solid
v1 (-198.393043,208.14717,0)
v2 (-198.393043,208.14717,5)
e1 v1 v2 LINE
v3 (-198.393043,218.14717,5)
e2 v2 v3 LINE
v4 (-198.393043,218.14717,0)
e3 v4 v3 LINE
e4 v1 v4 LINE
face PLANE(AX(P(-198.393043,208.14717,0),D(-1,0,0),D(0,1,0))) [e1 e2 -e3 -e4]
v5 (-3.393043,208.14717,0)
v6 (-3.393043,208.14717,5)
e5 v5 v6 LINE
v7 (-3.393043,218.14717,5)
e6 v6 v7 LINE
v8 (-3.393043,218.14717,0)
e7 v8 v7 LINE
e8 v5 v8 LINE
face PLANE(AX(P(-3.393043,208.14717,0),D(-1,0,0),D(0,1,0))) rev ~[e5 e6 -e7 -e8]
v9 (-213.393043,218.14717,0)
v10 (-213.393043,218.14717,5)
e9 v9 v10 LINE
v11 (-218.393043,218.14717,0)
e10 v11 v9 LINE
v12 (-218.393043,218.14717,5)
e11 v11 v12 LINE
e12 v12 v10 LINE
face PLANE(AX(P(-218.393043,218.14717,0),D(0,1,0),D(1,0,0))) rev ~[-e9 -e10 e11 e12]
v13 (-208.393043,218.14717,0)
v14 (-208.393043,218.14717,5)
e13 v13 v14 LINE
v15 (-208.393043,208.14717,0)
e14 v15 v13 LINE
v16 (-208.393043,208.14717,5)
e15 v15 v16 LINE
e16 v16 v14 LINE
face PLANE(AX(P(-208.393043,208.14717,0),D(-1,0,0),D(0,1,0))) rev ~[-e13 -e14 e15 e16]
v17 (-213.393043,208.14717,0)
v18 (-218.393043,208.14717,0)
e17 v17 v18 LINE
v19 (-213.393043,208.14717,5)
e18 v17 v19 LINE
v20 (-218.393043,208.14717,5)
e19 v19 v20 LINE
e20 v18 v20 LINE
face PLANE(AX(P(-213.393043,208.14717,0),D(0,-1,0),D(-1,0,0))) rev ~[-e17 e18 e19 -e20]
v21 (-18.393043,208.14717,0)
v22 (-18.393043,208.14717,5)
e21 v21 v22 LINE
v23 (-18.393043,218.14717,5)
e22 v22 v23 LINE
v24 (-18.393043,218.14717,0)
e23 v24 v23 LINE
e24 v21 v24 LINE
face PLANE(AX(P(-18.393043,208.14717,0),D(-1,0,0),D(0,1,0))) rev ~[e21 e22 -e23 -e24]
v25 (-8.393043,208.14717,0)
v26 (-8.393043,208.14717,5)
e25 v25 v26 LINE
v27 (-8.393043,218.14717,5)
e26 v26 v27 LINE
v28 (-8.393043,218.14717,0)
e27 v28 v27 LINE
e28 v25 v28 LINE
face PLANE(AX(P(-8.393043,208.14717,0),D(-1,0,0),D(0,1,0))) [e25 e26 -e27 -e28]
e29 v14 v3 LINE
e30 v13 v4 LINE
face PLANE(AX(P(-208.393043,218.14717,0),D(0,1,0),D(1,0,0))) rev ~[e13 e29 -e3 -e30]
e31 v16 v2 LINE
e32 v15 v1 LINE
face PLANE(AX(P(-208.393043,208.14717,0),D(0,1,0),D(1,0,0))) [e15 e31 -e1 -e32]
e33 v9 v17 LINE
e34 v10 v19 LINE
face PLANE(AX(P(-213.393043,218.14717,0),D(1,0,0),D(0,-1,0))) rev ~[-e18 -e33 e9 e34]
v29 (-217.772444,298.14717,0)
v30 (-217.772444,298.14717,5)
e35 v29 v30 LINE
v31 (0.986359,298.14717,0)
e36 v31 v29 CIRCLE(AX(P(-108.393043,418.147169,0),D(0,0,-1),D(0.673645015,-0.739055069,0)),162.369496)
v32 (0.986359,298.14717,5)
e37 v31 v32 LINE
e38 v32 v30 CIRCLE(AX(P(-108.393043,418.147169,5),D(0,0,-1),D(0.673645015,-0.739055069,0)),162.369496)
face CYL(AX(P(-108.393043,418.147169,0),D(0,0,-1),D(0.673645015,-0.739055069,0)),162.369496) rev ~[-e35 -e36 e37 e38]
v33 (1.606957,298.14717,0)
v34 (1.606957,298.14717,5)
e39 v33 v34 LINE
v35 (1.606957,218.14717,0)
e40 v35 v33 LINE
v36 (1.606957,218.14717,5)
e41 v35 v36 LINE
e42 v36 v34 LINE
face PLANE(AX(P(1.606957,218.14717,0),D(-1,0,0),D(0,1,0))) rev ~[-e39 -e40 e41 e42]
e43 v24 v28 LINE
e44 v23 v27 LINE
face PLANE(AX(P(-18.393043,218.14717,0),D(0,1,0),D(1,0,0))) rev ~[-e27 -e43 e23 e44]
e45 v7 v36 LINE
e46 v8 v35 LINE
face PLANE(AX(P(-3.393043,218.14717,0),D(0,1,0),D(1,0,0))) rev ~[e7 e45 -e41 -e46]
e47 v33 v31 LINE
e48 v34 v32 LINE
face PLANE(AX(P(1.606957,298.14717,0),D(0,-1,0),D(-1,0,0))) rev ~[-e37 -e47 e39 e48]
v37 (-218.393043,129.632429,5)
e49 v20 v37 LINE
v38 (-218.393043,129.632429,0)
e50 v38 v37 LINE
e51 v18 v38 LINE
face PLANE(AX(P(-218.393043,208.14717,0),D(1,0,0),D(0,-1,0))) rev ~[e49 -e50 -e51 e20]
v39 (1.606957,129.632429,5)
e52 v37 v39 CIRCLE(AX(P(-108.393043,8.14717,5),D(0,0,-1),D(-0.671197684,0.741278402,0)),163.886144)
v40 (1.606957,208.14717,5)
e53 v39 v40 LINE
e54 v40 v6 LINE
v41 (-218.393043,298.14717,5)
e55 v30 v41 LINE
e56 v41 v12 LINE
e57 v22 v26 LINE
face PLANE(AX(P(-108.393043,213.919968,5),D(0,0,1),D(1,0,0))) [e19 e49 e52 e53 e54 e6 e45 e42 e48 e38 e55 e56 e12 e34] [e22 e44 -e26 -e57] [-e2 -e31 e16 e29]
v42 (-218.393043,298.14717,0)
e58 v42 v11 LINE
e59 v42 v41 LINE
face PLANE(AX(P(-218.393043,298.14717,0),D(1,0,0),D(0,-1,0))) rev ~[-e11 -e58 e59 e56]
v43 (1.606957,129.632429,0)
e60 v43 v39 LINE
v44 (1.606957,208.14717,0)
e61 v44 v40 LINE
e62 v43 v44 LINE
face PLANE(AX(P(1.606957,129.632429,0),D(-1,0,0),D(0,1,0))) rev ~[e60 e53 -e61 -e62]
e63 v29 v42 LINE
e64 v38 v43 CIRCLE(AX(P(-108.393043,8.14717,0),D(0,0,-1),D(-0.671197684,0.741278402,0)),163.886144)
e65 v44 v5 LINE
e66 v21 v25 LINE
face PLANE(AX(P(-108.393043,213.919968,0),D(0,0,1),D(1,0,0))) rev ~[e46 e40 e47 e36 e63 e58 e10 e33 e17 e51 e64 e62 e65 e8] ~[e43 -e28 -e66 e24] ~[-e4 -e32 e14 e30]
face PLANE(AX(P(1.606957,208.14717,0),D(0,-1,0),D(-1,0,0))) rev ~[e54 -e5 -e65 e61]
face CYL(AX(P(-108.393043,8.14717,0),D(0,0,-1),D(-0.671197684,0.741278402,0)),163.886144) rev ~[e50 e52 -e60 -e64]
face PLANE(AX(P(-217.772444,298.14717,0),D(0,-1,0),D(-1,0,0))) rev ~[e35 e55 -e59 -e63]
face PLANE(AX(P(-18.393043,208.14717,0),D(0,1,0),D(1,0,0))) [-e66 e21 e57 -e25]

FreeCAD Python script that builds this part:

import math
import FreeCAD as App
import Part
import Sketcher

V = App.Vector
Q = App.Units.Quantity

doc = App.newDocument("Part")
body = doc.addObject("PartDesign::Body", "Body")

sketch1 = doc.addObject("Sketcher::SketchObject", "Sketch")
body.addObject(sketch1)
sketch1.AttachmentSupport = (doc.XY_Plane, [""])
sketch1.MapMode = "FlatFace"
sketch1.addGeometry([
    Part.LineSegment(V(-217.772444, 298.14717, 0), V(-218.393043, 298.14717, 0)),
    Part.LineSegment(V(-218.393043, 298.14717, 0), V(-218.393043, 218.14717, 0)),
    Part.LineSegment(V(-218.393043, 218.14717, 0), V(-213.393043, 218.14717, 0)),
    Part.LineSegment(V(-213.393043, 218.14717, 0), V(-213.393043, 208.14717, 0)),
    Part.LineSegment(V(-213.393043, 208.14717, 0), V(-218.393043, 208.14717, 0)),
    Part.LineSegment(V(-218.393043, 208.14717, 0), V(-218.393043, 129.632429, 0)),
    Part.ArcOfCircle(Part.Circle(V(-108.393043, 8.14717, 0), V(0, 0, 1), 163.886144), math.radians(47.84043), math.radians(132.15957)),
    Part.LineSegment(V(1.606957, 129.632429, 0), V(1.606957, 208.14717, 0)),
    Part.LineSegment(V(1.606957, 208.14717, 0), V(-3.393043, 208.14717, 0)),
    Part.LineSegment(V(-3.393043, 208.14717, 0), V(-3.393043, 218.14717, 0)),
    Part.LineSegment(V(-3.393043, 218.14717, 0), V(1.606957, 218.14717, 0)),
    Part.LineSegment(V(1.606957, 218.14717, 0), V(1.606957, 298.14717, 0)),
    Part.LineSegment(V(1.606957, 298.14717, 0), V(0.986359, 298.14717, 0)),
    Part.ArcOfCircle(Part.Circle(V(-108.393043, 418.147169, 0), V(0, 0, 1), 162.369496), math.radians(-132.349016), math.radians(-47.650984)),
    Part.LineSegment(V(-198.393043, 208.14717, 0), V(-208.393043, 208.14717, 0)),
    Part.LineSegment(V(-208.393043, 208.14717, 0), V(-208.393043, 218.14717, 0)),
    Part.LineSegment(V(-208.393043, 218.14717, 0), V(-198.393043, 218.14717, 0)),
    Part.LineSegment(V(-198.393043, 218.14717, 0), V(-198.393043, 208.14717, 0)),
    Part.LineSegment(V(-8.393043, 208.14717, 0), V(-18.393043, 208.14717, 0)),
    Part.LineSegment(V(-18.393043, 208.14717, 0), V(-18.393043, 218.14717, 0)),
    Part.LineSegment(V(-18.393043, 218.14717, 0), V(-8.393043, 218.14717, 0)),
    Part.LineSegment(V(-8.393043, 218.14717, 0), V(-8.393043, 208.14717, 0)),
], False)
sketch1.addConstraint([
    Sketcher.Constraint("Coincident", 0, 2, 1, 1),
    Sketcher.Constraint("Coincident", 1, 2, 2, 1),
    Sketcher.Constraint("Coincident", 2, 2, 3, 1),
    Sketcher.Constraint("Coincident", 3, 2, 4, 1),
    Sketcher.Constraint("Coincident", 4, 2, 5, 1),
    Sketcher.Constraint("Coincident", 5, 2, 6, 2),
    Sketcher.Constraint("Coincident", 6, 1, 7, 1),
    Sketcher.Constraint("Coincident", 7, 2, 8, 1),
    Sketcher.Constraint("Coincident", 8, 2, 9, 1),
    Sketcher.Constraint("Coincident", 9, 2, 10, 1),
    Sketcher.Constraint("Coincident", 10, 2, 11, 1),
    Sketcher.Constraint("Coincident", 11, 2, 12, 1),
    Sketcher.Constraint("Coincident", 12, 2, 13, 2),
    Sketcher.Constraint("Coincident", 13, 1, 0, 1),
    Sketcher.Constraint("Coincident", 14, 2, 15, 1),
    Sketcher.Constraint("Coincident", 15, 2, 16, 1),
    Sketcher.Constraint("Coincident", 16, 2, 17, 1),
    Sketcher.Constraint("Coincident", 17, 2, 14, 1),
    Sketcher.Constraint("Coincident", 18, 2, 19, 1),
    Sketcher.Constraint("Coincident", 19, 2, 20, 1),
    Sketcher.Constraint("Coincident", 20, 2, 21, 1),
    Sketcher.Constraint("Coincident", 21, 2, 18, 1),
    Sketcher.Constraint("Horizontal", 0),
    Sketcher.Constraint("Vertical", 1),
    Sketcher.Constraint("Horizontal", 2),
    Sketcher.Constraint("Vertical", 3),
    Sketcher.Constraint("Horizontal", 4),
    Sketcher.Constraint("Vertical", 5),
    Sketcher.Constraint("Vertical", 7),
    Sketcher.Constraint("Horizontal", 8),
    Sketcher.Constraint("Vertical", 9),
    Sketcher.Constraint("Horizontal", 10),
    Sketcher.Constraint("Vertical", 11),
    Sketcher.Constraint("Horizontal", 12),
    Sketcher.Constraint("Horizontal", 14),
    Sketcher.Constraint("Vertical", 15),
    Sketcher.Constraint("Horizontal", 16),
    Sketcher.Constraint("Vertical", 17),
    Sketcher.Constraint("Horizontal", 18),
    Sketcher.Constraint("Vertical", 19),
    Sketcher.Constraint("Horizontal", 20),
    Sketcher.Constraint("Vertical", 21),
    Sketcher.Constraint("Horizontal", 5, 2, 6, 1),
    Sketcher.Constraint("Horizontal", 4, 2, 7, 2),
    Sketcher.Constraint("Horizontal", 2, 2, 9, 2),
    Sketcher.Constraint("Horizontal", 0, 2, 11, 2),
    Sketcher.Constraint("Horizontal", 8, 2, 14, 2),
    Sketcher.Constraint("Horizontal", 10, 2, 15, 2),
    Sketcher.Constraint("Horizontal", 17, 2, 18, 2),
    Sketcher.Constraint("Horizontal", 16, 2, 19, 2),
    Sketcher.Constraint("Vertical", 6, 3, 13, 3),
    Sketcher.Constraint("Vertical", 1, 2, 4, 2),
    Sketcher.Constraint("Vertical", 7, 2, 10, 2),
    Sketcher.Constraint("Equal", 4, 8),
    Sketcher.Constraint("Equal", 16, 18),
    Sketcher.Constraint("Equal", 20, 3),
    Sketcher.Constraint("DistanceX", 2, 1, 2, 2, Q("5 mm")),
    Sketcher.Constraint("DistanceX", 14, 2, 14, 1, Q("10 mm")),
    Sketcher.Constraint("DistanceY", 1, 2, 1, 1, Q("80 mm")),
    Sketcher.Constraint("DistanceY", 6, 3, 13, 3, Q("409.999999 mm")),
    Sketcher.Constraint("DistanceX", 0, 2, 13, 3, Q("110 mm")),
    Sketcher.Constraint("DistanceY", 0, 2, 13, 3, Q("119.999999 mm")),
    Sketcher.Constraint("DistanceX", 3, 2, 14, 2, Q("5 mm")),
    Sketcher.Constraint("DistanceX", 18, 2, 8, 2, Q("15 mm")),
    Sketcher.Constraint("DistanceX", 0, 2, 0, 1, Q("0.620599 mm")),
    Sketcher.Constraint("Radius", 6, Q("163.886144 mm")),
    Sketcher.Constraint("DistanceY", -1, 1, 6, 3, Q("8.14717 mm")),
    Sketcher.Constraint("DistanceX", -1, 1, 12, 2, Q("0.986359 mm")),
])
pad1 = doc.addObject("PartDesign::Pad", "Pad")
body.addObject(pad1)
pad1.Profile = sketch1
pad1.Length = 5

doc.recompute()
